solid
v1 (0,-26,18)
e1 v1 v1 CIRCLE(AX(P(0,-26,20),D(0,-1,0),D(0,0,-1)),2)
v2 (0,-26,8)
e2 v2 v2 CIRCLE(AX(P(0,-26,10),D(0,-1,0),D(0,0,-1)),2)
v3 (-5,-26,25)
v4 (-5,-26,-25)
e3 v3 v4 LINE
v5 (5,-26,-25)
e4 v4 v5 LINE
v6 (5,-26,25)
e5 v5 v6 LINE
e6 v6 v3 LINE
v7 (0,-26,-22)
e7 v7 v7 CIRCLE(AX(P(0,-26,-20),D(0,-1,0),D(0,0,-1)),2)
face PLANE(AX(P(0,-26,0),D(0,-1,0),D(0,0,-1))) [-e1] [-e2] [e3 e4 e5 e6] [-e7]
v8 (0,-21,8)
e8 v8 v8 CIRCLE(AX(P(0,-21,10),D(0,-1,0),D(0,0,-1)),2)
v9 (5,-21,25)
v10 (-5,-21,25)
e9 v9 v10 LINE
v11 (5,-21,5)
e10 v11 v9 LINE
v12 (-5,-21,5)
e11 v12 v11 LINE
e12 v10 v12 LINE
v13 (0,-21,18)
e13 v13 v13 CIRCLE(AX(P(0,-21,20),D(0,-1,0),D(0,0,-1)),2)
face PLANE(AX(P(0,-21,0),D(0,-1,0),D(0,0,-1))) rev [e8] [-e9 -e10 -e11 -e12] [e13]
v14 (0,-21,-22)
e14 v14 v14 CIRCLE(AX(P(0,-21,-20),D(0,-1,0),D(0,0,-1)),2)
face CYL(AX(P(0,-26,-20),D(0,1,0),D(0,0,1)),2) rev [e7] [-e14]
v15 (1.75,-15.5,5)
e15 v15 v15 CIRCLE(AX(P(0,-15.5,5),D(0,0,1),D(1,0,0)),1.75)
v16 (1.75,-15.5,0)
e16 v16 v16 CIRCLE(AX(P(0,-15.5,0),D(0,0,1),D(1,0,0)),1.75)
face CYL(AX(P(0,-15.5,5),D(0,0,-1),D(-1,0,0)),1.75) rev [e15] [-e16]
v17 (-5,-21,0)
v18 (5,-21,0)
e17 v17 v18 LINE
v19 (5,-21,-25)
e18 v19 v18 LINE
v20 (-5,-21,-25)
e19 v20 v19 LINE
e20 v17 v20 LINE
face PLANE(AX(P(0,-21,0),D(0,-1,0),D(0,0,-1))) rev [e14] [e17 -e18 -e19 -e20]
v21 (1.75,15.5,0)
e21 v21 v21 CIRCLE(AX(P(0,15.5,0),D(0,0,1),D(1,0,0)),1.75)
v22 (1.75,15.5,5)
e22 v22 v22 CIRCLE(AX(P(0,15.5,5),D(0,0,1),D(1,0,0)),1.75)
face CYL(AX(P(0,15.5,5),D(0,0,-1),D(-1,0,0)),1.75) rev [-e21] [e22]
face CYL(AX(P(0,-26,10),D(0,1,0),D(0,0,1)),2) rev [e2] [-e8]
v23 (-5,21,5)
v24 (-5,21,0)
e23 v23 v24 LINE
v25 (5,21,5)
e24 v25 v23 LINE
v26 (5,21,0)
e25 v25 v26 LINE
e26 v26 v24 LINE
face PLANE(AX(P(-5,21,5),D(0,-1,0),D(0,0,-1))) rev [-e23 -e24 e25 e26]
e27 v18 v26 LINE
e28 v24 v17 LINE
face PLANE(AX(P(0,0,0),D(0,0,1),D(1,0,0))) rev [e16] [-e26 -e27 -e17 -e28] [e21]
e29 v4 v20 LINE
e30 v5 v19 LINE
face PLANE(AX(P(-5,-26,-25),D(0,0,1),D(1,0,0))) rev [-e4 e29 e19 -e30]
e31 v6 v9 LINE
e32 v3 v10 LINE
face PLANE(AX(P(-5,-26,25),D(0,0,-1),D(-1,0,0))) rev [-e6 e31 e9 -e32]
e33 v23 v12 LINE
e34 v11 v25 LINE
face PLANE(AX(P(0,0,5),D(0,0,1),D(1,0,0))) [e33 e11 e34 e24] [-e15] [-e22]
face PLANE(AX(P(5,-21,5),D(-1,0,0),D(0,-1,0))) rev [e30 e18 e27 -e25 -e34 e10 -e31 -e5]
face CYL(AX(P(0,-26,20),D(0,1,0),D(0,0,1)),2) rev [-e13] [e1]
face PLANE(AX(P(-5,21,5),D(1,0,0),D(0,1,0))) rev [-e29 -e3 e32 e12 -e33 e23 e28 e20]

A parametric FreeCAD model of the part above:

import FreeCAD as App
import Part
import Sketcher
from FreeCAD import Vector
Q = App.Units.Quantity

doc = App.newDocument("Part")
body = doc.addObject("PartDesign::Body", "Body")

# Sketch on XY plane
sketch1 = body.newObject("Sketcher::SketchObject", "Sketch")
sketch1.AttachmentSupport = (doc.getObject("XY_Plane"), [""])
sketch1.MapMode = "FlatFace"
sketch1.addGeometry(Part.LineSegment(Vector(-5, 21, 0), Vector(-5, -21, 0)), False)
sketch1.addGeometry(Part.LineSegment(Vector(-5, -21, 0), Vector(5, -21, 0)), False)
sketch1.addGeometry(Part.LineSegment(Vector(5, -21, 0), Vector(5, 21, 0)), False)
sketch1.addGeometry(Part.LineSegment(Vector(5, 21, 0), Vector(-5, 21, 0)), False)
sketch1.addGeometry(Part.Circle(Vector(0, -15.5, 0), Vector(0, 0, 1), 1.8), False)
sketch1.addGeometry(Part.Circle(Vector(0, 15.5, 0), Vector(0, 0, 1), 1.8), False)
sketch1.addConstraint(Sketcher.Constraint("Coincident", 0, 2, 1, 1))
sketch1.addConstraint(Sketcher.Constraint("Coincident", 1, 2, 2, 1))
sketch1.addConstraint(Sketcher.Constraint("Coincident", 2, 2, 3, 1))
sketch1.addConstraint(Sketcher.Constraint("Coincident", 3, 2, 0, 1))
sketch1.addConstraint(Sketcher.Constraint("Vertical", 0))
sketch1.addConstraint(Sketcher.Constraint("Horizontal", 1))
sketch1.addConstraint(Sketcher.Constraint("Vertical", 2))
sketch1.addConstraint(Sketcher.Constraint("Horizontal", 3))
sketch1.addConstraint(Sketcher.Constraint("Equal", 4, 5))
sketch1.addConstraint(Sketcher.Constraint("Symmetric", 4, 3, 5, 3, -1, 1))
sketch1.addConstraint(Sketcher.Constraint("Symmetric", 0, 2, 2, 2, -1, 1))
sketch1.addConstraint(Sketcher.Constraint("PointOnObject", 4, 3, -2))
sketch1.addConstraint(Sketcher.Constraint("Diameter", 4, Q("3.5 mm")))
sketch1.addConstraint(Sketcher.Constraint("DistanceX", 1, 1, 1, 2, Q("10 mm")))
sketch1.addConstraint(Sketcher.Constraint("DistanceY", 0, 2, 0, 1, Q("42 mm")))
sketch1.addConstraint(Sketcher.Constraint("DistanceY", 4, 3, 5, 3, Q("31 mm")))
pad1 = body.newObject("PartDesign::Pad", "Pad")
pad1.Profile = sketch1
pad1.Length = 5

# Sketch on XZ plane
sketch2 = body.newObject("Sketcher::SketchObject", "Sketch001")
sketch2.AttachmentSupport = (doc.getObject("XZ_Plane"), [""])
sketch2.MapMode = "FlatFace"
sketch2.AttachmentOffset = App.Placement(Vector(0, 0, 21), App.Rotation())
sketch2.addGeometry(Part.LineSegment(Vector(-5, 25, 0), Vector(-5, -25, 0)), False)
sketch2.addGeometry(Part.LineSegment(Vector(-5, -25, 0), Vector(5, -25, 0)), False)
sketch2.addGeometry(Part.LineSegment(Vector(5, -25, 0), Vector(5, 25, 0)), False)
sketch2.addGeometry(Part.LineSegment(Vector(5, 25, 0), Vector(-5, 25, 0)), False)
sketch2.addGeometry(Part.Circle(Vector(0, -20, 0), Vector(0, 0, 1), 2), False)
sketch2.addGeometry(Part.Circle(Vector(0, 10, 0), Vector(0, 0, 1), 2), False)
sketch2.addGeometry(Part.Circle(Vector(0, 20, 0), Vector(0, 0, 1), 2), False)
sketch2.addConstraint(Sketcher.Constraint("Coincident", 0, 2, 1, 1))
sketch2.addConstraint(Sketcher.Constraint("Coincident", 1, 2, 2, 1))
sketch2.addConstraint(Sketcher.Constraint("Coincident", 2, 2, 3, 1))
sketch2.addConstraint(Sketcher.Constraint("Coincident", 3, 2, 0, 1))
sketch2.addConstraint(Sketcher.Constraint("Vertical", 0))
sketch2.addConstraint(Sketcher.Constraint("Horizontal", 1))
sketch2.addConstraint(Sketcher.Constraint("Vertical", 2))
sketch2.addConstraint(Sketcher.Constraint("Horizontal", 3))
sketch2.addConstraint(Sketcher.Constraint("Equal", 4, 5))
sketch2.addConstraint(Sketcher.Constraint("Equal", 5, 6))
sketch2.addConstraint(Sketcher.Constraint("Symmetric", 4, 3, 6, 3, -1, 1))
sketch2.addConstraint(Sketcher.Constraint("Symmetric", 0, 2, 2, 2, -1, 1))
sketch2.addConstraint(Sketcher.Constraint("PointOnObject", 4, 3, -2))
sketch2.addConstraint(Sketcher.Constraint("PointOnObject", 5, 3, -2))
sketch2.addConstraint(Sketcher.Constraint("Diameter", 4, Q("4 mm")))
sketch2.addConstraint(Sketcher.Constraint("DistanceX", 1, 1, 1, 2, Q("10 mm")))
sketch2.addConstraint(Sketcher.Constraint("DistanceY", 0, 2, 0, 1, Q("50 mm")))
sketch2.addConstraint(Sketcher.Constraint("DistanceY", 4, 3, -1, 1, Q("20 mm")))
sketch2.addConstraint(Sketcher.Constraint("DistanceY", -1, 1, 5, 3, Q("10 mm")))
pad2 = body.newObject("PartDesign::Pad", "Pad001")
pad2.Profile = sketch2
pad2.Length = 5

doc.recompute()
